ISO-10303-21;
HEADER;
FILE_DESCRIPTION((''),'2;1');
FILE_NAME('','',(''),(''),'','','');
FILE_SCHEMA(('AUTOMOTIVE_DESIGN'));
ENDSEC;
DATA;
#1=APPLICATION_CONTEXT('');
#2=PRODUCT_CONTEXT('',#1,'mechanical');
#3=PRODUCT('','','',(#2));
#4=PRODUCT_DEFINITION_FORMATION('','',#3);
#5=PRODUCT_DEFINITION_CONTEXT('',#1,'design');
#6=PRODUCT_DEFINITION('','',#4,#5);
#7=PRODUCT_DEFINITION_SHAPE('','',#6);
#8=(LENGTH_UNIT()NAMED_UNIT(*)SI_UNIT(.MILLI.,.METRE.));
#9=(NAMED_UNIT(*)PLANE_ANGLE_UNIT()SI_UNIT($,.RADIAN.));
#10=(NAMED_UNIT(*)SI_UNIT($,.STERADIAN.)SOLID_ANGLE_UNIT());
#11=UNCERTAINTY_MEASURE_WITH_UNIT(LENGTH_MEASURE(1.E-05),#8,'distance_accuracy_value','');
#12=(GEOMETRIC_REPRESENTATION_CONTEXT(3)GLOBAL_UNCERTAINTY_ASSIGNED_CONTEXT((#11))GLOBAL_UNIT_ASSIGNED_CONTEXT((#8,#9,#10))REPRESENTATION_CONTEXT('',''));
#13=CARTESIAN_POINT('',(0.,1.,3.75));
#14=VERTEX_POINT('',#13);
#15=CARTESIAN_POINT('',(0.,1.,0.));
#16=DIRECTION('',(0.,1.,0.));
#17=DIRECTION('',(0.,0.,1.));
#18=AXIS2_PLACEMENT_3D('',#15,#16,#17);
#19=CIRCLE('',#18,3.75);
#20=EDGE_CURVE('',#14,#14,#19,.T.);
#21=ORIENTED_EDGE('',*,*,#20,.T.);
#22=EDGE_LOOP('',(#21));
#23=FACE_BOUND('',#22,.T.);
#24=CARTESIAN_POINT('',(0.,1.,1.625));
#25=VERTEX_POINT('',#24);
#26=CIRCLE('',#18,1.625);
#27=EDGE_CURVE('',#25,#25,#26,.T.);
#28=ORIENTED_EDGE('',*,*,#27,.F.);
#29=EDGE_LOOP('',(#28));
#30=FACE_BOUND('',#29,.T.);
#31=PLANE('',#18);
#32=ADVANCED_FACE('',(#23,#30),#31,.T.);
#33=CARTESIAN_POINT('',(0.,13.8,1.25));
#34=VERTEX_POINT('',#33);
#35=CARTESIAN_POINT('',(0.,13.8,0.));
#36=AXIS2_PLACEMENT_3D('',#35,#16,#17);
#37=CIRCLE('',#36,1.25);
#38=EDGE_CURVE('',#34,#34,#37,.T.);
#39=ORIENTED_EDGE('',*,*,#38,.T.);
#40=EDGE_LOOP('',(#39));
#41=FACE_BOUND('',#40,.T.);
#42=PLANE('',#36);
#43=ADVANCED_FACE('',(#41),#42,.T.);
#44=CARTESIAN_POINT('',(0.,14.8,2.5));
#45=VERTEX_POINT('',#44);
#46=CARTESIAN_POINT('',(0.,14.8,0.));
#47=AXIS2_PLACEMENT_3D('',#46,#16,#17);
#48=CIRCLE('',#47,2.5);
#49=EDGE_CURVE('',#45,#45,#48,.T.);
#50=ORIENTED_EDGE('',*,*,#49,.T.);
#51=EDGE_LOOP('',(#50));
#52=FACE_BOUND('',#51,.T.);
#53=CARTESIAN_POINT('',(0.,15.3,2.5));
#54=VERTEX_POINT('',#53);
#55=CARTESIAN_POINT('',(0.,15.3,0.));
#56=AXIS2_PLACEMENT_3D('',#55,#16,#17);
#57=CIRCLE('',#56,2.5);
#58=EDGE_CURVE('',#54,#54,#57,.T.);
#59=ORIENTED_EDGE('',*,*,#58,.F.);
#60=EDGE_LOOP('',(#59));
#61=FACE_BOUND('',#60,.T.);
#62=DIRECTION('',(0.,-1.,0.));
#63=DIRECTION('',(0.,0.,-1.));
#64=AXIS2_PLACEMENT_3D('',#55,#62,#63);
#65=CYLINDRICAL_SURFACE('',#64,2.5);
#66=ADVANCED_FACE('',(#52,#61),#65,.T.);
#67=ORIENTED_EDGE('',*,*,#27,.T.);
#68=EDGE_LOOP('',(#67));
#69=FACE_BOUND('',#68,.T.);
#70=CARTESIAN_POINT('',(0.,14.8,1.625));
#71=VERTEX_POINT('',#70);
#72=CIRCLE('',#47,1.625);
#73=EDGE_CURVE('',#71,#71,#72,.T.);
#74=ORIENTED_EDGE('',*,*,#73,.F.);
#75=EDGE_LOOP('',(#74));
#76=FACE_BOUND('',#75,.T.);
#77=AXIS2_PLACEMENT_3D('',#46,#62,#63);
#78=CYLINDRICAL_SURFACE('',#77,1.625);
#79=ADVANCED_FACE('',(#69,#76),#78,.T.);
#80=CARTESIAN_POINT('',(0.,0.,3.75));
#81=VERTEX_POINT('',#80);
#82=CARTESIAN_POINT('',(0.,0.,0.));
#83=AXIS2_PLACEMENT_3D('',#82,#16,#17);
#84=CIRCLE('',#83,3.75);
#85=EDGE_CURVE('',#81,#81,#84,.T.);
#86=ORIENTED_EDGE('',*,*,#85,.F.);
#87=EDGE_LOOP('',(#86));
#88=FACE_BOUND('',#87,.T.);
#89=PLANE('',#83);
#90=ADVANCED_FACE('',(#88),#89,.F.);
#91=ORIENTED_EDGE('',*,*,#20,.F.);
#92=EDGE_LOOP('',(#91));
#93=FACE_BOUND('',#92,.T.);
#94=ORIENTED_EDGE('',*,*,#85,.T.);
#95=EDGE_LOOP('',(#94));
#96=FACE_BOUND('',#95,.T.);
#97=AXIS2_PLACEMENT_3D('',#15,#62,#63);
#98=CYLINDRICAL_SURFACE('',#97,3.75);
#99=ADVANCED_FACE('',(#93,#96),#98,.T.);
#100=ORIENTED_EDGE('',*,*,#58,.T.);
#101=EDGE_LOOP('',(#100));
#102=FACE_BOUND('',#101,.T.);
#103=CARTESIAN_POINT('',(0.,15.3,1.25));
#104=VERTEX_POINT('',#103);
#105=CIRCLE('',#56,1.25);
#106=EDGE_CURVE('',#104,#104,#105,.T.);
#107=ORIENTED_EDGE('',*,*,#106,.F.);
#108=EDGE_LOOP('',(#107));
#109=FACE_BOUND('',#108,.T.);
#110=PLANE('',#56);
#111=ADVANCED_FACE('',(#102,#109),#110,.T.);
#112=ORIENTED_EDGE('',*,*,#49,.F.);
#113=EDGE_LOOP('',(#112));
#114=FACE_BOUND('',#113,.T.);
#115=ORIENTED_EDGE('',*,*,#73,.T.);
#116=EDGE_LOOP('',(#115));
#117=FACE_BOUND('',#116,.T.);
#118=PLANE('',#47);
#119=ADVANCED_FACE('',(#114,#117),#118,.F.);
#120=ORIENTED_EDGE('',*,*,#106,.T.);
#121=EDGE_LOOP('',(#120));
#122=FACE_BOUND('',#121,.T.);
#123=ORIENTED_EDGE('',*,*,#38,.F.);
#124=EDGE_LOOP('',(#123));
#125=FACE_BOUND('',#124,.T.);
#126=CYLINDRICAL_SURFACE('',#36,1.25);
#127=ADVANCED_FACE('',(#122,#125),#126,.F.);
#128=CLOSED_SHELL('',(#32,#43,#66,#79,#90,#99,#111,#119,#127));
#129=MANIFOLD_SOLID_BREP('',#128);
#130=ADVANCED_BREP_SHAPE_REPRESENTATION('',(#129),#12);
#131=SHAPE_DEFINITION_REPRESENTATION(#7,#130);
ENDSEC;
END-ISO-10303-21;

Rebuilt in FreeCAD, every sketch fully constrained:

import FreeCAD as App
import Part
import Sketcher

doc = App.newDocument("Part")
params = doc.addObject("Spreadsheet::Sheet", "Params")
for row, (alias, value) in enumerate([
    ("sketch1_diameter", "7.5 mm"),
    ("pad1_length", "1 mm"),
    ("sketch2_diameter", "3.25 mm"),
    ("pad2_length", "13.8 mm"),
    ("sketch3_diameter", "5 mm"),
    ("pad3_length", "0.5 mm"),
    ("sketch4_diameter", "2.5 mm"),
    ("pocket1_length", "1.5 mm"),
], start=1):
    params.set(f"A{row}", alias)
    params.set(f"B{row}", "=" + value)
    params.setAlias(f"B{row}", alias)

body = doc.addObject("PartDesign::Body", "Body")

# Sketch on XZ plane
sketch1 = body.newObject("Sketcher::SketchObject", "Sketch")
sketch1.AttachmentSupport = (doc.getObject("XZ_Plane"), [""])
sketch1.MapMode = "FlatFace"
sketch1.addGeometry(Part.Circle(App.Vector(0, 0, 0), App.Vector(0, 0, 1), 3.8), False)
sketch1.addConstraint(Sketcher.Constraint("Coincident", 0, 3, -1, 1))
sketch1.addConstraint(Sketcher.Constraint("Diameter", 0, 7.5))
sketch1.setExpression("Constraints[1]", "Params.sketch1_diameter")
pad1 = body.newObject("PartDesign::Pad", "Pad")
pad1.Profile = sketch1
pad1.setExpression("Length", "Params.pad1_length")
pad1.Reversed = True

# Sketch on XZ plane
sketch2 = body.newObject("Sketcher::SketchObject", "Sketch001")
sketch2.AttachmentSupport = (doc.getObject("XZ_Plane"), [""])
sketch2.MapMode = "FlatFace"
sketch2.AttachmentOffset = App.Placement(App.Vector(0, 0, -1), App.Rotation())
sketch2.addGeometry(Part.Circle(App.Vector(0, 0, 0), App.Vector(0, 0, 1), 1.6), False)
sketch2.addConstraint(Sketcher.Constraint("Coincident", 0, 3, -1, 1))
sketch2.addConstraint(Sketcher.Constraint("Diameter", 0, 3.25))
sketch2.setExpression("Constraints[1]", "Params.sketch2_diameter")
pad2 = body.newObject("PartDesign::Pad", "Pad001")
pad2.Profile = sketch2
pad2.setExpression("Length", "Params.pad2_length")
pad2.Reversed = True

# Sketch on XZ plane
sketch3 = body.newObject("Sketcher::SketchObject", "Sketch002")
sketch3.AttachmentSupport = (doc.getObject("XZ_Plane"), [""])
sketch3.MapMode = "FlatFace"
sketch3.AttachmentOffset = App.Placement(App.Vector(0, 0, -14.8), App.Rotation())
sketch3.addGeometry(Part.Circle(App.Vector(0, 0, 0), App.Vector(0, 0, 1), 2.5), False)
sketch3.addConstraint(Sketcher.Constraint("Coincident", 0, 3, -1, 1))
sketch3.addConstraint(Sketcher.Constraint("Diameter", 0, 5.0))
sketch3.setExpression("Constraints[1]", "Params.sketch3_diameter")
pad3 = body.newObject("PartDesign::Pad", "Pad002")
pad3.Profile = sketch3
pad3.setExpression("Length", "Params.pad3_length")
pad3.Reversed = True

# Sketch on XZ plane
sketch4 = body.newObject("Sketcher::SketchObject", "Sketch003")
sketch4.AttachmentSupport = (doc.getObject("XZ_Plane"), [""])
sketch4.MapMode = "FlatFace"
sketch4.AttachmentOffset = App.Placement(App.Vector(0, 0, -15.3), App.Rotation())
sketch4.addGeometry(Part.Circle(App.Vector(0, 0, 0), App.Vector(0, 0, 1), 1.2), False)
sketch4.addConstraint(Sketcher.Constraint("Coincident", 0, 3, -1, 1))
sketch4.addConstraint(Sketcher.Constraint("Diameter", 0, 2.5))
sketch4.setExpression("Constraints[1]", "Params.sketch4_diameter")
pocket1 = body.newObject("PartDesign::Pocket", "Pocket")
pocket1.Profile = sketch4
pocket1.setExpression("Length", "Params.pocket1_length")
pocket1.Reversed = True

doc.recompute()
